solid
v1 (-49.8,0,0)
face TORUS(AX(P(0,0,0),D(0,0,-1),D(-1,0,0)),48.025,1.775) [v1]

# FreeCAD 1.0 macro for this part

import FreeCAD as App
import Part
import Sketcher

V = App.Vector

doc = App.newDocument("Part")
params = doc.addObject("Spreadsheet::Sheet", "Params")
for row, (alias, value) in enumerate([
    ("sketch1_diameter", "3.55 mm"),
    ("sketch2_diameter", "92.5 mm"),
], start=1):
    params.set(f"A{row}", alias)
    params.set(f"B{row}", "=" + value)
    params.setAlias(f"B{row}", alias)

body = doc.addObject("PartDesign::Body", "Body")

sketch1 = doc.addObject("Sketcher::SketchObject", "Sketch")
body.addObject(sketch1)
sketch1.AttachmentSupport = (doc.XZ_Plane, [""])
sketch1.MapMode = "FlatFace"
sketch1.addGeometry(Part.Circle(V(-48.025, 0, 0), V(0, 0, 1), 1.775), False)
sketch1.addConstraint([
    Sketcher.Constraint("PointOnObject", 0, 3, -1),
    Sketcher.Constraint("Diameter", 0, 3.55),
    Sketcher.Constraint("DistanceX", 0, 3, -1, 1, 48.025),
])
sketch1.setExpression("Constraints[1]", "Params.sketch1_diameter")

sketch2 = doc.addObject("Sketcher::SketchObject", "Sketch001")
body.addObject(sketch2)
sketch2.AttachmentSupport = (doc.XY_Plane, [""])
sketch2.MapMode = "FlatFace"
sketch2.addGeometry(Part.Circle(V(0, 0, 0), V(0, 0, 1), 46.25), False)
sketch2.addConstraint([
    Sketcher.Constraint("Coincident", 0, 3, -1, 1),
    Sketcher.Constraint("Diameter", 0, 92.5),
])
sketch2.setExpression("Constraints[1]", "Params.sketch2_diameter")
doc.recompute()

additivepipe = doc.addObject("PartDesign::AdditivePipe", "AdditivePipe")
body.addObject(additivepipe)
additivepipe.Profile = sketch1
additivepipe.Spine = (sketch2, ["Edge1"])

doc.recompute()
